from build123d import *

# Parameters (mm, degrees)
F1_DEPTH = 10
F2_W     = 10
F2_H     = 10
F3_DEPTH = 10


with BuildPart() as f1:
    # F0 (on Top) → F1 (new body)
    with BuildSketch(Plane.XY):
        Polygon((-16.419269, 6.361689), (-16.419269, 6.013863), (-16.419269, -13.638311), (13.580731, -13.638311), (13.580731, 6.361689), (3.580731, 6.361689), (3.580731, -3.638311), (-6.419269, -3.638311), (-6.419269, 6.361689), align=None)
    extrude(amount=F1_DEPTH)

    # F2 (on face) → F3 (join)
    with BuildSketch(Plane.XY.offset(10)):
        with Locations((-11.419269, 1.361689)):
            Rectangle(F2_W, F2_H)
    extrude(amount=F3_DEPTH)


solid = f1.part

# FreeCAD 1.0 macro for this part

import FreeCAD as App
import Part
import Sketcher


def add_polygon(sketch, points):
    """Adds a closed chain of lines whose ends are joined by coincident constraints."""
    first, n = sketch.GeometryCount, len(points)
    for a, b in zip(points, points[1:] + points[:1]):
        sketch.addGeometry(Part.LineSegment(App.Vector(*a, 0), App.Vector(*b, 0)), False)
    for i in range(n):
        sketch.addConstraint(Sketcher.Constraint("Coincident", first + i, 2, first + (i + 1) % n, 1))

doc = App.newDocument("Part")
body = doc.addObject("PartDesign::Body", "Body")

# Sketch on XY plane
sketch1 = body.newObject("Sketcher::SketchObject", "Sketch")
sketch1.AttachmentSupport = (doc.getObject("XY_Plane"), [""])
sketch1.MapMode = "FlatFace"
add_polygon(sketch1, [(-16, 6), (-16, -14), (14, -14), (14, 6), (4, 6), (4, -4), (-6, -4), (-6, 6)])  # lines 0-7
sketch1.addConstraint([
    Sketcher.Constraint("Vertical", 0),
    Sketcher.Constraint("Horizontal", 1),
    Sketcher.Constraint("Vertical", 2),
    Sketcher.Constraint("Horizontal", 3),
    Sketcher.Constraint("Vertical", 4),
    Sketcher.Constraint("Horizontal", 5),
    Sketcher.Constraint("Vertical", 6),
    Sketcher.Constraint("Horizontal", 7),
    Sketcher.Constraint("Horizontal", 3, 2, 6, 2),
    Sketcher.Constraint("Equal", 3, 5),
    Sketcher.Constraint("Equal", 5, 7),
    Sketcher.Constraint("Equal", 7, 4),
    Sketcher.Constraint("DistanceX", 1, 1, 1, 2, 30.0),
    Sketcher.Constraint("DistanceY", 0, 2, 0, 1, 20.0),
    Sketcher.Constraint("DistanceX", 0, 2, -1, 1, 16.419269),
    Sketcher.Constraint("DistanceY", 0, 2, -1, 1, 13.638311),
])
pad1 = body.newObject("PartDesign::Pad", "Pad")
pad1.Profile = sketch1
pad1.Length = 10

# Sketch on XY plane
sketch2 = body.newObject("Sketcher::SketchObject", "Sketch001")
sketch2.AttachmentSupport = (doc.getObject("XY_Plane"), [""])
sketch2.MapMode = "FlatFace"
sketch2.AttachmentOffset = App.Placement(App.Vector(0, 0, 10), App.Rotation())
add_polygon(sketch2, [(-16, 6), (-16, -4), (-6, -4), (-6, 6)])  # lines 0-3
sketch2.addConstraint([
    Sketcher.Constraint("Vertical", 0),
    Sketcher.Constraint("Horizontal", 1),
    Sketcher.Constraint("Vertical", 2),
    Sketcher.Constraint("Horizontal", 3),
    Sketcher.Constraint("Equal", 3, 0),
    Sketcher.Constraint("DistanceX", 1, 1, 1, 2, 10.0),
    Sketcher.Constraint("DistanceX", 0, 2, -1, 1, 16.419269),
    Sketcher.Constraint("DistanceY", 0, 2, -1, 1, 3.638311),
])
pad2 = body.newObject("PartDesign::Pad", "Pad001")
pad2.Profile = sketch2
pad2.Length = 10

doc.recompute()
